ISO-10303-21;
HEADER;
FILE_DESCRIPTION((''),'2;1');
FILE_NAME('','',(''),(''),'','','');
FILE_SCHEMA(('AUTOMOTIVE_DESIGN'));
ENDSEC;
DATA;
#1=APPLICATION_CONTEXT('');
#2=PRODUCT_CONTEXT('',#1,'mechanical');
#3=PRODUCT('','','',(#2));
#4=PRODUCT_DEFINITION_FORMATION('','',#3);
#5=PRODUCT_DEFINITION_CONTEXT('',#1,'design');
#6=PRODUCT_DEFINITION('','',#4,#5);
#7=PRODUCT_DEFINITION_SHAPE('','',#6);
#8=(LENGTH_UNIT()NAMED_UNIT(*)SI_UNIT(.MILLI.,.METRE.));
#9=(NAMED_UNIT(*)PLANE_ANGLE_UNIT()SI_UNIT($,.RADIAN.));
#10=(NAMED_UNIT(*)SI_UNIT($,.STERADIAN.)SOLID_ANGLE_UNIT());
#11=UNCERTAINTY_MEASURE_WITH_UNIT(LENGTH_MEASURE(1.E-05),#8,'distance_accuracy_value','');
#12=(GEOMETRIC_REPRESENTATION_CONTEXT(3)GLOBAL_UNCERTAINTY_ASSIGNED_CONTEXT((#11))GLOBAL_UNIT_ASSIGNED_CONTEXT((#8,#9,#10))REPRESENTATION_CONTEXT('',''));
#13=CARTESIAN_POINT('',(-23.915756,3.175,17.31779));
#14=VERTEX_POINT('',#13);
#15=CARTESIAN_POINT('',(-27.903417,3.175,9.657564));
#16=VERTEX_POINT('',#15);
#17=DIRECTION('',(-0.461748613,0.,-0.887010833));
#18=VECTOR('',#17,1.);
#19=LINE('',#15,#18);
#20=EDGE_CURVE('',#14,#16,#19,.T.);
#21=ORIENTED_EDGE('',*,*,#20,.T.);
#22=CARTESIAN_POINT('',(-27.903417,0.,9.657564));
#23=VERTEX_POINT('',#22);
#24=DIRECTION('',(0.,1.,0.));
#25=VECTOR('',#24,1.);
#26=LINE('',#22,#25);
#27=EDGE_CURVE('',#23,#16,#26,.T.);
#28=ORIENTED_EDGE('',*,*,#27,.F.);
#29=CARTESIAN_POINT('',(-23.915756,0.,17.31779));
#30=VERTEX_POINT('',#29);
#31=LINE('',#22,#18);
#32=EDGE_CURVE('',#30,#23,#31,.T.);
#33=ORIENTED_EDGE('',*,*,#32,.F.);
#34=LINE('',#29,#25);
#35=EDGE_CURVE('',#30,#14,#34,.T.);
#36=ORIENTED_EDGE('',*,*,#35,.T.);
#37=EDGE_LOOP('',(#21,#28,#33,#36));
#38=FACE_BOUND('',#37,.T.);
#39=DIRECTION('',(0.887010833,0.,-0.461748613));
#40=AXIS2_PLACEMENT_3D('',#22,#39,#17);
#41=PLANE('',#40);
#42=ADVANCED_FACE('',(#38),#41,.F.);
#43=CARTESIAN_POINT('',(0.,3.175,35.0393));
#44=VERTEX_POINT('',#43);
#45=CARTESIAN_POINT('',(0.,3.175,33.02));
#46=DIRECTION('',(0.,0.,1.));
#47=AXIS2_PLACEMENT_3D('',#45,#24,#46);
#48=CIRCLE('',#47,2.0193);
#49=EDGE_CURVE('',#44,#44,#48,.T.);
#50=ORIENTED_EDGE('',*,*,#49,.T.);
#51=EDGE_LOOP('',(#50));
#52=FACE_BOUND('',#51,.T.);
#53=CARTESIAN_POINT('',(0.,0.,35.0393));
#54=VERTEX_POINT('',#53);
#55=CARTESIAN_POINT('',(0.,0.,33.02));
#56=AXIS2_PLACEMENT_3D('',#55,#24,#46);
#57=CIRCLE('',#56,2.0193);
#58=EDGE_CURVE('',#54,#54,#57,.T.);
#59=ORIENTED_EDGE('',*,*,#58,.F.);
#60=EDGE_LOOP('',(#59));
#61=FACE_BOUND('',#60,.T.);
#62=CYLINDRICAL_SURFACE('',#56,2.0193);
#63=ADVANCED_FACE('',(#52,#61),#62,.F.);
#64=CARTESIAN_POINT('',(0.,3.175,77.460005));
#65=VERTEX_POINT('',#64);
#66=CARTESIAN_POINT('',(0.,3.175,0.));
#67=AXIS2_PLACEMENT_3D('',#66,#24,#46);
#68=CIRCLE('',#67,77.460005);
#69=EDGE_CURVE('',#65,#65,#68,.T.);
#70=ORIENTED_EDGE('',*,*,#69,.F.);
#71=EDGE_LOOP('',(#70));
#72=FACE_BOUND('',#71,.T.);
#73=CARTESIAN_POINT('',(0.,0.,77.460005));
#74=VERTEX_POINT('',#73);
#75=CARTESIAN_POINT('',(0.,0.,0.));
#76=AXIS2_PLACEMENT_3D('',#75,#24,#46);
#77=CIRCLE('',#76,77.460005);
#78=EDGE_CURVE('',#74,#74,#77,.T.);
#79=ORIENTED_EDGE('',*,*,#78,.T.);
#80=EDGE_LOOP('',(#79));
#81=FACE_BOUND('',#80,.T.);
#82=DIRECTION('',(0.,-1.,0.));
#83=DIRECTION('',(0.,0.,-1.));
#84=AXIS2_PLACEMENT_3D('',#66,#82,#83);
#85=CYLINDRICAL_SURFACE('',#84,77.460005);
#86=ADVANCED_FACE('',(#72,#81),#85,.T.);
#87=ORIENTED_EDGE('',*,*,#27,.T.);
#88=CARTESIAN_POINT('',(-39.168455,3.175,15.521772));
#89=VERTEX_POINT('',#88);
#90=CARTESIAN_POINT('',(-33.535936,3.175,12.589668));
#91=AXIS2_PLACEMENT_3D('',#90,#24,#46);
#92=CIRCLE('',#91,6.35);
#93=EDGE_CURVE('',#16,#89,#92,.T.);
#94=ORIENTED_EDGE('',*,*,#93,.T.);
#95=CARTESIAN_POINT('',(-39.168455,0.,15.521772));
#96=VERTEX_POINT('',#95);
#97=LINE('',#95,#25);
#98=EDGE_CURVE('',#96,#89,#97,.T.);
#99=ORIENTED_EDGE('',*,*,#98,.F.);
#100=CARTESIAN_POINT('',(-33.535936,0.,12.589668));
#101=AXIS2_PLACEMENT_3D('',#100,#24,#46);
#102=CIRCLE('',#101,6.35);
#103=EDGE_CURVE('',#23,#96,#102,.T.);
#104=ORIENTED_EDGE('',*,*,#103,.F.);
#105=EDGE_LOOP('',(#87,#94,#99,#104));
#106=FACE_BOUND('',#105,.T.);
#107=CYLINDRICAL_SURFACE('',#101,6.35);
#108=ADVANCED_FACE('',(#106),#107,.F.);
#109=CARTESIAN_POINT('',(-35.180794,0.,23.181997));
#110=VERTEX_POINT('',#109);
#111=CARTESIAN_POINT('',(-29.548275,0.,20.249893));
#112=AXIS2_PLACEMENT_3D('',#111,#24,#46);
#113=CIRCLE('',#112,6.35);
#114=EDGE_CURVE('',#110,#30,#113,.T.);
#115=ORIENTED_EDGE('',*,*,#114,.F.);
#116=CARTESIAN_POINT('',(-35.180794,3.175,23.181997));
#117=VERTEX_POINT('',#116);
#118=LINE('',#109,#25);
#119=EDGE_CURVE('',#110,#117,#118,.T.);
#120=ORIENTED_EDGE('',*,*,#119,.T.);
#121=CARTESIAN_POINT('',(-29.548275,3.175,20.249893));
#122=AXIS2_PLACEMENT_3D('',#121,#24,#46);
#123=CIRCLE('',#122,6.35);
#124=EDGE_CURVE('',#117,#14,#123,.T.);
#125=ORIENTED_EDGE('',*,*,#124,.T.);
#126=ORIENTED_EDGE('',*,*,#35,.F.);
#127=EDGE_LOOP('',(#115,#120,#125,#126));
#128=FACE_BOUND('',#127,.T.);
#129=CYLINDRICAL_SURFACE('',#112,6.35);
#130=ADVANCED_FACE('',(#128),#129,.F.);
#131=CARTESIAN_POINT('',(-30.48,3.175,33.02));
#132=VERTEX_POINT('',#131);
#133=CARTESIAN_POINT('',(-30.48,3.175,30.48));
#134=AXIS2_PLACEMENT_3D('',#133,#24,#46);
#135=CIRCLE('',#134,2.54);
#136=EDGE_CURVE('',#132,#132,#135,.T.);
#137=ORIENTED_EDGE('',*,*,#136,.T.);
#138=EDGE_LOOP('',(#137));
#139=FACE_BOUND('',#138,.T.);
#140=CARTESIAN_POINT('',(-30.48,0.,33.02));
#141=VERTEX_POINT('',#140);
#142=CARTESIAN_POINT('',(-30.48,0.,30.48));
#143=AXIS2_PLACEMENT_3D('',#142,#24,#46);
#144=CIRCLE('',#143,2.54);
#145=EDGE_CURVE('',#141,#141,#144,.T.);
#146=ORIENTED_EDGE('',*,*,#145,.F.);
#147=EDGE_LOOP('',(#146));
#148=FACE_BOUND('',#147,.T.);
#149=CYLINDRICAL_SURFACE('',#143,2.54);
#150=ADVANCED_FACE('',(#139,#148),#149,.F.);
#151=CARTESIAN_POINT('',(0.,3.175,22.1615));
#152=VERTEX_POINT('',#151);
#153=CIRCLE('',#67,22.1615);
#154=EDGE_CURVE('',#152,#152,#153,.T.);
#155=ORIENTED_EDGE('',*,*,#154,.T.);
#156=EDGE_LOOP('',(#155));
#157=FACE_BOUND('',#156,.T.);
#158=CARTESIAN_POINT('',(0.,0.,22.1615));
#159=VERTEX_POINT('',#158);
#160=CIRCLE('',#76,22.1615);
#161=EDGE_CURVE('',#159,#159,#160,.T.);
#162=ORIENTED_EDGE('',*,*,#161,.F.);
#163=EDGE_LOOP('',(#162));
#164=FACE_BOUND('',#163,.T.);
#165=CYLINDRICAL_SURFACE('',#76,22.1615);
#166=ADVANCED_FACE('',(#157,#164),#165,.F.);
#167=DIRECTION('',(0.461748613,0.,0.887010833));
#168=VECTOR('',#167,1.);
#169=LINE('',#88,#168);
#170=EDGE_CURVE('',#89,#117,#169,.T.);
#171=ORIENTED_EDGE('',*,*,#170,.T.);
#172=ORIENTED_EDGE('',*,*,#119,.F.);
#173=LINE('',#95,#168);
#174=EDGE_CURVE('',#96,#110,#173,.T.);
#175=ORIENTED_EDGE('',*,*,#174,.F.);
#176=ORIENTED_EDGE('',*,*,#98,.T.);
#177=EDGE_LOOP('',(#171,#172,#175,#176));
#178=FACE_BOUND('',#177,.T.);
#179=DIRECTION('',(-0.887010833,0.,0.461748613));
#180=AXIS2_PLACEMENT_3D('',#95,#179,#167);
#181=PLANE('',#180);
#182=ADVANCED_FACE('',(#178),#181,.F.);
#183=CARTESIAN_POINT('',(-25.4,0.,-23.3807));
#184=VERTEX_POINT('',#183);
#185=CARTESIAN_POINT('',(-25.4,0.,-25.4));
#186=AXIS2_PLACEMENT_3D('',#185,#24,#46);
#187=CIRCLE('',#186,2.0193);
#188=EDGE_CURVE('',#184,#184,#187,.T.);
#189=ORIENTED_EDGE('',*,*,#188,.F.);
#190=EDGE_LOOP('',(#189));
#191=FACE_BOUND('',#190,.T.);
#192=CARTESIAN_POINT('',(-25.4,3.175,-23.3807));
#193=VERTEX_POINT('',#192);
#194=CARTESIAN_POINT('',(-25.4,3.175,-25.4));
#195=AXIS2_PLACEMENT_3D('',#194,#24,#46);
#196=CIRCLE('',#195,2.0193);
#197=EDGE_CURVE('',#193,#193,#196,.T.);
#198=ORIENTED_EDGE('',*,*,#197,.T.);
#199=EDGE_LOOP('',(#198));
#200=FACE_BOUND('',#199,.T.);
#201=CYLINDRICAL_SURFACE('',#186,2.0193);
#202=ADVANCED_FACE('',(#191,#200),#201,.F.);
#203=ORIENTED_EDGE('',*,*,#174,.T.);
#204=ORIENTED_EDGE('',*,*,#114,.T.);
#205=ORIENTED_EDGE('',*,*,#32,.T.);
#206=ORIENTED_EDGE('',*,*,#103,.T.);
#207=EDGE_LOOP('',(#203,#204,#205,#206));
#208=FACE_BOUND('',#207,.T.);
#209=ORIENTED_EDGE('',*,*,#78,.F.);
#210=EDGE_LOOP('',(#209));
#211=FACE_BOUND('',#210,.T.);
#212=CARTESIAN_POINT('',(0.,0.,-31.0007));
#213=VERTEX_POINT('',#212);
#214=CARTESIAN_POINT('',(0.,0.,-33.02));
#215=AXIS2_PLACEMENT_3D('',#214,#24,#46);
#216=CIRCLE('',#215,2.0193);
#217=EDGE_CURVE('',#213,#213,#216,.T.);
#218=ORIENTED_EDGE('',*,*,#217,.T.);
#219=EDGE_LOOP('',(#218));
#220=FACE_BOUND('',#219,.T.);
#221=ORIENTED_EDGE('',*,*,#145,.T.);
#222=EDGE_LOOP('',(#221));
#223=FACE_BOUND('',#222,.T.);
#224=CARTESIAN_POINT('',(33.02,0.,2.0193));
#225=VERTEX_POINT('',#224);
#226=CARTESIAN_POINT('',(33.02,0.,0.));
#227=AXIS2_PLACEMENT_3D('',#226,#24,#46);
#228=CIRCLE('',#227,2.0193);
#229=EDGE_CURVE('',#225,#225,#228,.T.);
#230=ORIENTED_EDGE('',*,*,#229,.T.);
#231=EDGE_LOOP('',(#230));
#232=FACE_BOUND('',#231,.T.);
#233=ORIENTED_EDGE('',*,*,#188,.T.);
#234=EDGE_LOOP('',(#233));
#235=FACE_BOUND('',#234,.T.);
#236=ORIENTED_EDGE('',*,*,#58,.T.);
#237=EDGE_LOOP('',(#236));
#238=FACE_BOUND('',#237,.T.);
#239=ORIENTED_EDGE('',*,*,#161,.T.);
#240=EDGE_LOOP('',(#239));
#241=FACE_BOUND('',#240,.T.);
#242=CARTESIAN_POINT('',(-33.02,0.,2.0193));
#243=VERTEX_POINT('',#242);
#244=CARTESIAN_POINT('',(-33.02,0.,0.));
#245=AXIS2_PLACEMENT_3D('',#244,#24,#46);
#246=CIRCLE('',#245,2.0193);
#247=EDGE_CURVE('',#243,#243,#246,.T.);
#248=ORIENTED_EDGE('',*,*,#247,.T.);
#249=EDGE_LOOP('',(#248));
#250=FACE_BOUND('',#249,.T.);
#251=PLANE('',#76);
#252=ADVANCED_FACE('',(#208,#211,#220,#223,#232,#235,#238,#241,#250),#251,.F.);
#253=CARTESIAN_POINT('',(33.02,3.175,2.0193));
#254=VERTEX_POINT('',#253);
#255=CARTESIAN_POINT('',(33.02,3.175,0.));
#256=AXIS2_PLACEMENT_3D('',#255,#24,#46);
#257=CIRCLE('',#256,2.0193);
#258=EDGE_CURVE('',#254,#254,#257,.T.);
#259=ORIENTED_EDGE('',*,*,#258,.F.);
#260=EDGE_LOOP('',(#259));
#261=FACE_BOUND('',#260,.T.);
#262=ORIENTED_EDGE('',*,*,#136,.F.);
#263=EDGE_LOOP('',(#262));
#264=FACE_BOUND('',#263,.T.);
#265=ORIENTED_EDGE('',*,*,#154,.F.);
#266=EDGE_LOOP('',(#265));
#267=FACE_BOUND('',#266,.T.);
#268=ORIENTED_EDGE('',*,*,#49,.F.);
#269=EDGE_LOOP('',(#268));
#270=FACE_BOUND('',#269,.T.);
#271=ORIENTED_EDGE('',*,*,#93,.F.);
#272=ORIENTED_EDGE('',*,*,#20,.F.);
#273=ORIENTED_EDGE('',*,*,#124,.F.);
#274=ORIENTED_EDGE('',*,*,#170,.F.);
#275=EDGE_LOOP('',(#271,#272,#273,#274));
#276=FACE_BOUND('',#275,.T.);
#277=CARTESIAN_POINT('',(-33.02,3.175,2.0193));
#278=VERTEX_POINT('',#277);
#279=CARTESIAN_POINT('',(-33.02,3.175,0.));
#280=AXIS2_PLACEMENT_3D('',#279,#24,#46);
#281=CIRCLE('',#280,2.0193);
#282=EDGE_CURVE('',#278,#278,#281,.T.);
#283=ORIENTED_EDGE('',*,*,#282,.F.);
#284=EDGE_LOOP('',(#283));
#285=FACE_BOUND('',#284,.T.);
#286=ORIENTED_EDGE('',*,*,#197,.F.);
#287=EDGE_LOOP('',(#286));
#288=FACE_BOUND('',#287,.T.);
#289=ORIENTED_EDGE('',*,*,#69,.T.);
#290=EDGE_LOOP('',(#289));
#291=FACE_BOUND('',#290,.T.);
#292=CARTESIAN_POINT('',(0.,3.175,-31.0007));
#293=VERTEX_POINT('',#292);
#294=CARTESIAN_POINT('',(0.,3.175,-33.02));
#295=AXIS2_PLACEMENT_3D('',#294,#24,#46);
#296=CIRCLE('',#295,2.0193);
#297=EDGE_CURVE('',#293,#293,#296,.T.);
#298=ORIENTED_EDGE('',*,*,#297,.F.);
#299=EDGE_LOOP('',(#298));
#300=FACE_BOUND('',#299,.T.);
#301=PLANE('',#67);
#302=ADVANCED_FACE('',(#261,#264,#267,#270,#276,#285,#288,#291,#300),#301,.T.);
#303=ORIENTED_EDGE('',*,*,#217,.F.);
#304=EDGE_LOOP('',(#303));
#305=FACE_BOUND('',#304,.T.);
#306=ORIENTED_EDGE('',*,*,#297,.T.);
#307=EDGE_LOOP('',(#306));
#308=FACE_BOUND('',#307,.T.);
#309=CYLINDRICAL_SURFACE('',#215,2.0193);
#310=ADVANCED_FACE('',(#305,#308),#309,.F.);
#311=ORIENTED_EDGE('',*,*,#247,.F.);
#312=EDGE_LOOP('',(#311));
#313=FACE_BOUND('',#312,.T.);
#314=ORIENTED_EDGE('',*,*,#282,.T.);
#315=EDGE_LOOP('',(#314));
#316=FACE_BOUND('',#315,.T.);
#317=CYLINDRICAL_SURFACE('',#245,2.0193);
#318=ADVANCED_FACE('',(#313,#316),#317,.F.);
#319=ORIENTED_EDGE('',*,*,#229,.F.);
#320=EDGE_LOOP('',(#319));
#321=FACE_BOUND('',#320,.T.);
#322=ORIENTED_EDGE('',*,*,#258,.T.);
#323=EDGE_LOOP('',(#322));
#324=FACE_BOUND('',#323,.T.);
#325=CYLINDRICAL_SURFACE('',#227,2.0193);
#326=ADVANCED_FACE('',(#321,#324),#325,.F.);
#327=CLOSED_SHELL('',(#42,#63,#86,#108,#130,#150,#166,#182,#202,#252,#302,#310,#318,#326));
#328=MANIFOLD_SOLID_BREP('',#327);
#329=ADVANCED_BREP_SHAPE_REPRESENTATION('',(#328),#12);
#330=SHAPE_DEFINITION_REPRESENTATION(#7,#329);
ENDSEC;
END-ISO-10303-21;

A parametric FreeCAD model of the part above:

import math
import FreeCAD as App
import Part
import Sketcher
from FreeCAD import Vector
Q = App.Units.Quantity

doc = App.newDocument("Part")
body = doc.addObject("PartDesign::Body", "Body")

# Sketch on XZ plane
sketch1 = body.newObject("Sketcher::SketchObject", "Sketch")
sketch1.AttachmentSupport = (doc.getObject("XZ_Plane"), [""])
sketch1.MapMode = "FlatFace"
sketch1.addGeometry(Part.Circle(Vector(0, 0, 0), Vector(0, 0, 1), 77), False)
sketch1.addConstraint([
    Sketcher.Constraint("Coincident", 0, 3, -1, 1),
    Sketcher.Constraint("Diameter", 0, 154.92001),
])
pad1 = body.newObject("PartDesign::Pad", "Pad")
pad1.Profile = sketch1
pad1.Length = Q("0.125 in")
pad1.Reversed = True

# Sketch on XZ plane
sketch2 = body.newObject("Sketcher::SketchObject", "Sketch001")
sketch2.AttachmentSupport = (doc.getObject("XZ_Plane"), [""])
sketch2.MapMode = "FlatFace"
sketch2.AttachmentOffset = App.Placement(Vector(0, 0, -0.125 * 25.4), App.Rotation())
sketch2.addGeometry([
    Part.Circle(Vector(0, 0, 0), Vector(0, 0, 1), 22.2),  # 0
    Part.Circle(Vector(0, -33, 0), Vector(0, 0, 1), 2),  # 1
    Part.Circle(Vector(33, 0, 0), Vector(0, 0, 1), 2),  # 2
    Part.Circle(Vector(-33, 0, 0), Vector(0, 0, 1), 2),  # 3
    Part.Circle(Vector(0, 33, 0), Vector(0, 0, 1), 2),  # 4
    Part.Circle(Vector(-30.5, 30.5, 0), Vector(0, 0, 1), 2.5),  # 5
    Part.Circle(Vector(-25.4, -25.4, 0), Vector(0, 0, 1), 2),  # 6
    Part.LineSegment(Vector(-23.9, 17.3, 0), Vector(-27.9, 9.7, 0)),  # 7
    Part.ArcOfCircle(Part.Circle(Vector(-33.5, 12.6, 0), Vector(0, 0, 1), 6.3), math.radians(152), math.radians(333)),  # 8
    Part.LineSegment(Vector(-39.2, 15.5, 0), Vector(-35.2, 23.2, 0)),  # 9
    Part.ArcOfCircle(Part.Circle(Vector(-29.5, 20.2, 0), Vector(0, 0, 1), 6.3), math.radians(-27), math.radians(153)),  # 10
], False)
sketch2.addConstraint([
    Sketcher.Constraint("Tangent", 7, 2, 8, 2),
    Sketcher.Constraint("Tangent", 8, 1, 9, 1),
    Sketcher.Constraint("Tangent", 9, 2, 10, 2),
    Sketcher.Constraint("Tangent", 10, 1, 7, 1),
    Sketcher.Constraint("Coincident", 0, 3, -1, 1),
    Sketcher.Constraint("Equal", 1, 2),
    Sketcher.Constraint("Equal", 2, 3),
    Sketcher.Constraint("Equal", 3, 4),
    Sketcher.Constraint("Equal", 4, 6),
    Sketcher.Constraint("Equal", 8, 10),
    Sketcher.Constraint("Symmetric", 2, 3, 3, 3, -1, 1),
    Sketcher.Constraint("Symmetric", 1, 3, 4, 3, -1, 1),
    Sketcher.Constraint("PointOnObject", 1, 3, -2),
    Sketcher.Constraint("PointOnObject", 2, 3, -1),
    Sketcher.Constraint("Diameter", 5, Q("0.2 in")),
    Sketcher.Constraint("Radius", 8, Q("0.25 in")),
    Sketcher.Constraint("Diameter", 0, Q("1.745 in")),
    Sketcher.Constraint("Diameter", 1, Q("0.159 in")),
    Sketcher.Constraint("DistanceX", 6, 3, -1, 1, Q("1 in")),
    Sketcher.Constraint("DistanceY", 6, 3, -1, 1, Q("1 in")),
    Sketcher.Constraint("DistanceY", 1, 3, -1, 1, Q("1.3 in")),
    Sketcher.Constraint("DistanceX", -1, 1, 2, 3, Q("1.3 in")),
    Sketcher.Constraint("DistanceX", 5, 3, -1, 1, Q("1.2 in")),
    Sketcher.Constraint("DistanceY", -1, 1, 5, 3, Q("1.2 in")),
    Sketcher.Constraint("Angle", 7, Q("-117.5 deg")),
    Sketcher.Constraint("Distance", 7, Q("0.34 in")),
    Sketcher.Constraint("DistanceY", -1, 1, 8, 1, 15.521772),
    Sketcher.Constraint("DistanceX", 8, 3, -1, 1, 33.535936),
])
pocket1 = body.newObject("PartDesign::Pocket", "Pocket")
pocket1.Profile = sketch2
pocket1.Type = "ThroughAll"
pocket1.Reversed = True

doc.recompute()
